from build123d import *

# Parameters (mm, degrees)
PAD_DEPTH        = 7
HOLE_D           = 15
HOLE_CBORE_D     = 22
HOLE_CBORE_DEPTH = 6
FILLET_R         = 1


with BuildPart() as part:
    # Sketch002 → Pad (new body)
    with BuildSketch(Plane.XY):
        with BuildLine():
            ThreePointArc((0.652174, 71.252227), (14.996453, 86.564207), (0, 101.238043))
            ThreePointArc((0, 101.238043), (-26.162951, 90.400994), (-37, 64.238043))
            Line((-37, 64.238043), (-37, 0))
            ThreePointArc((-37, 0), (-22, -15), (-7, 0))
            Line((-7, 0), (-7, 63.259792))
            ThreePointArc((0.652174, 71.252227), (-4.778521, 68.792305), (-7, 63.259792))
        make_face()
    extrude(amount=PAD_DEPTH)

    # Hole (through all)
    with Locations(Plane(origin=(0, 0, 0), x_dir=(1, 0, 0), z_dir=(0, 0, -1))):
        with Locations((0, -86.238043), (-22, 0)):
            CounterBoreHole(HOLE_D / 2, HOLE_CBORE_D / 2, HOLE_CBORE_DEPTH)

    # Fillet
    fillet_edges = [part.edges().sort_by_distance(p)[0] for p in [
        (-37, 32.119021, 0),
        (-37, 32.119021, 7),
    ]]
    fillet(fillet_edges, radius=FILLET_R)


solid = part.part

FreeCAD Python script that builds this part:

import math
import FreeCAD as App
import Part
import Sketcher
Q = App.Units.Quantity


def edges_at(feature, points):
    """Names of the edges that pass closest to the given points."""
    edges = feature.Shape.Edges
    near = lambda p: min(range(len(edges)), key=lambda i: edges[i].distToShape(Part.Vertex(*p))[0])
    return sorted({f"Edge{near(p) + 1}" for p in points})

doc = App.newDocument("Part")
body = doc.addObject("PartDesign::Body", "Body")

# Sketch on XY plane
sketch1 = body.newObject("Sketcher::SketchObject", "Sketch")
sketch1.AttachmentSupport = (doc.getObject("XY_Plane"), [""])
sketch1.MapMode = "FlatFace"
sketch1.addGeometry([
    Part.ArcOfCircle(Part.Circle(App.Vector(-0.000001, 86.238043, 0), App.Vector(0, 0, 1), 15), math.radians(-87.508091), math.radians(89.999997)),  # 0
    Part.ArcOfCircle(Part.Circle(App.Vector(0, 64.238043, 0), App.Vector(0, 0, 1), 37), math.radians(89.999999), math.radians(180.000001)),  # 1
    Part.LineSegment(App.Vector(-37, 64.238043, 0), App.Vector(-37, 0, 0)),  # 2
    Part.ArcOfCircle(Part.Circle(App.Vector(-22, 0, 0), App.Vector(0, 0, 1), 15), math.radians(180), math.radians(360)),  # 3
    Part.LineSegment(App.Vector(-7, 0, 0), App.Vector(-7, 63.259792, 0)),  # 4
    Part.ArcOfCircle(Part.Circle(App.Vector(0.999999, 63.259793, 0), App.Vector(0, 0, 1), 7.999999), math.radians(92.4919), math.radians(180.000006)),  # 5
], False)
sketch1.addConstraint([
    Sketcher.Constraint("Tangent", 0, 2, 1, 1),
    Sketcher.Constraint("Tangent", 1, 2, 2, 1),
    Sketcher.Constraint("Tangent", 2, 2, 3, 1),
    Sketcher.Constraint("Tangent", 3, 2, 4, 1),
    Sketcher.Constraint("Tangent", 4, 2, 5, 2),
    Sketcher.Constraint("Tangent", 5, 1, 0, 1),
    Sketcher.Constraint("Vertical", 2),
    Sketcher.Constraint("Vertical", 4),
    Sketcher.Constraint("Equal", 0, 3),
    Sketcher.Constraint("PointOnObject", 0, 3, -2),
    Sketcher.Constraint("PointOnObject", 1, 3, -2),
    Sketcher.Constraint("PointOnObject", 3, 3, -1),
    Sketcher.Constraint("Radius", 0, Q("15 mm")),
    Sketcher.Constraint("Radius", 1, Q("37 mm")),
    Sketcher.Constraint("Radius", 5, Q("7.999999 mm")),
    Sketcher.Constraint("DistanceY", 4, 1, 4, 2, Q("63.259792 mm")),
])
pad1 = body.newObject("PartDesign::Pad", "Pad")
pad1.Profile = sketch1
pad1.Length = 7

# Sketch on XY plane
sketch2 = body.newObject("Sketcher::SketchObject", "Sketch001")
sketch2.AttachmentSupport = (doc.getObject("XY_Plane"), [""])
sketch2.MapMode = "FlatFace"
sketch2.addGeometry([
    Part.Circle(App.Vector(0, 86.238043, 0), App.Vector(0, 0, 1), 7.5),
    Part.Circle(App.Vector(-22, 0, 0), App.Vector(0, 0, 1), 7.5),
], False)
sketch2.addConstraint([
    Sketcher.Constraint("Equal", 0, 1),
    Sketcher.Constraint("PointOnObject", 0, 3, -2),
    Sketcher.Constraint("PointOnObject", 1, 3, -1),
    Sketcher.Constraint("Diameter", 0, Q("15 mm")),
    Sketcher.Constraint("DistanceX", 1, 3, -1, 1, Q("22 mm")),
    Sketcher.Constraint("DistanceY", -1, 1, 0, 3, Q("86.238043 mm")),
])
doc.recompute()
hole = body.newObject("PartDesign::Hole", "Hole")
hole.Profile = sketch2
hole.ThreadType = "None"
hole.Diameter = 15
hole.DepthType = "ThroughAll"
hole.HoleCutType = "Counterbore"
hole.HoleCutDiameter = 22
hole.HoleCutDepth = 6
hole.Reversed = True
doc.recompute()

fillet = body.newObject("PartDesign::Fillet", "Fillet")
fillet.Base = (hole, edges_at(hole, [(-37, 32.119, 0), (-37, 32.119, 7)]))
fillet.Radius = 1

doc.recompute()
